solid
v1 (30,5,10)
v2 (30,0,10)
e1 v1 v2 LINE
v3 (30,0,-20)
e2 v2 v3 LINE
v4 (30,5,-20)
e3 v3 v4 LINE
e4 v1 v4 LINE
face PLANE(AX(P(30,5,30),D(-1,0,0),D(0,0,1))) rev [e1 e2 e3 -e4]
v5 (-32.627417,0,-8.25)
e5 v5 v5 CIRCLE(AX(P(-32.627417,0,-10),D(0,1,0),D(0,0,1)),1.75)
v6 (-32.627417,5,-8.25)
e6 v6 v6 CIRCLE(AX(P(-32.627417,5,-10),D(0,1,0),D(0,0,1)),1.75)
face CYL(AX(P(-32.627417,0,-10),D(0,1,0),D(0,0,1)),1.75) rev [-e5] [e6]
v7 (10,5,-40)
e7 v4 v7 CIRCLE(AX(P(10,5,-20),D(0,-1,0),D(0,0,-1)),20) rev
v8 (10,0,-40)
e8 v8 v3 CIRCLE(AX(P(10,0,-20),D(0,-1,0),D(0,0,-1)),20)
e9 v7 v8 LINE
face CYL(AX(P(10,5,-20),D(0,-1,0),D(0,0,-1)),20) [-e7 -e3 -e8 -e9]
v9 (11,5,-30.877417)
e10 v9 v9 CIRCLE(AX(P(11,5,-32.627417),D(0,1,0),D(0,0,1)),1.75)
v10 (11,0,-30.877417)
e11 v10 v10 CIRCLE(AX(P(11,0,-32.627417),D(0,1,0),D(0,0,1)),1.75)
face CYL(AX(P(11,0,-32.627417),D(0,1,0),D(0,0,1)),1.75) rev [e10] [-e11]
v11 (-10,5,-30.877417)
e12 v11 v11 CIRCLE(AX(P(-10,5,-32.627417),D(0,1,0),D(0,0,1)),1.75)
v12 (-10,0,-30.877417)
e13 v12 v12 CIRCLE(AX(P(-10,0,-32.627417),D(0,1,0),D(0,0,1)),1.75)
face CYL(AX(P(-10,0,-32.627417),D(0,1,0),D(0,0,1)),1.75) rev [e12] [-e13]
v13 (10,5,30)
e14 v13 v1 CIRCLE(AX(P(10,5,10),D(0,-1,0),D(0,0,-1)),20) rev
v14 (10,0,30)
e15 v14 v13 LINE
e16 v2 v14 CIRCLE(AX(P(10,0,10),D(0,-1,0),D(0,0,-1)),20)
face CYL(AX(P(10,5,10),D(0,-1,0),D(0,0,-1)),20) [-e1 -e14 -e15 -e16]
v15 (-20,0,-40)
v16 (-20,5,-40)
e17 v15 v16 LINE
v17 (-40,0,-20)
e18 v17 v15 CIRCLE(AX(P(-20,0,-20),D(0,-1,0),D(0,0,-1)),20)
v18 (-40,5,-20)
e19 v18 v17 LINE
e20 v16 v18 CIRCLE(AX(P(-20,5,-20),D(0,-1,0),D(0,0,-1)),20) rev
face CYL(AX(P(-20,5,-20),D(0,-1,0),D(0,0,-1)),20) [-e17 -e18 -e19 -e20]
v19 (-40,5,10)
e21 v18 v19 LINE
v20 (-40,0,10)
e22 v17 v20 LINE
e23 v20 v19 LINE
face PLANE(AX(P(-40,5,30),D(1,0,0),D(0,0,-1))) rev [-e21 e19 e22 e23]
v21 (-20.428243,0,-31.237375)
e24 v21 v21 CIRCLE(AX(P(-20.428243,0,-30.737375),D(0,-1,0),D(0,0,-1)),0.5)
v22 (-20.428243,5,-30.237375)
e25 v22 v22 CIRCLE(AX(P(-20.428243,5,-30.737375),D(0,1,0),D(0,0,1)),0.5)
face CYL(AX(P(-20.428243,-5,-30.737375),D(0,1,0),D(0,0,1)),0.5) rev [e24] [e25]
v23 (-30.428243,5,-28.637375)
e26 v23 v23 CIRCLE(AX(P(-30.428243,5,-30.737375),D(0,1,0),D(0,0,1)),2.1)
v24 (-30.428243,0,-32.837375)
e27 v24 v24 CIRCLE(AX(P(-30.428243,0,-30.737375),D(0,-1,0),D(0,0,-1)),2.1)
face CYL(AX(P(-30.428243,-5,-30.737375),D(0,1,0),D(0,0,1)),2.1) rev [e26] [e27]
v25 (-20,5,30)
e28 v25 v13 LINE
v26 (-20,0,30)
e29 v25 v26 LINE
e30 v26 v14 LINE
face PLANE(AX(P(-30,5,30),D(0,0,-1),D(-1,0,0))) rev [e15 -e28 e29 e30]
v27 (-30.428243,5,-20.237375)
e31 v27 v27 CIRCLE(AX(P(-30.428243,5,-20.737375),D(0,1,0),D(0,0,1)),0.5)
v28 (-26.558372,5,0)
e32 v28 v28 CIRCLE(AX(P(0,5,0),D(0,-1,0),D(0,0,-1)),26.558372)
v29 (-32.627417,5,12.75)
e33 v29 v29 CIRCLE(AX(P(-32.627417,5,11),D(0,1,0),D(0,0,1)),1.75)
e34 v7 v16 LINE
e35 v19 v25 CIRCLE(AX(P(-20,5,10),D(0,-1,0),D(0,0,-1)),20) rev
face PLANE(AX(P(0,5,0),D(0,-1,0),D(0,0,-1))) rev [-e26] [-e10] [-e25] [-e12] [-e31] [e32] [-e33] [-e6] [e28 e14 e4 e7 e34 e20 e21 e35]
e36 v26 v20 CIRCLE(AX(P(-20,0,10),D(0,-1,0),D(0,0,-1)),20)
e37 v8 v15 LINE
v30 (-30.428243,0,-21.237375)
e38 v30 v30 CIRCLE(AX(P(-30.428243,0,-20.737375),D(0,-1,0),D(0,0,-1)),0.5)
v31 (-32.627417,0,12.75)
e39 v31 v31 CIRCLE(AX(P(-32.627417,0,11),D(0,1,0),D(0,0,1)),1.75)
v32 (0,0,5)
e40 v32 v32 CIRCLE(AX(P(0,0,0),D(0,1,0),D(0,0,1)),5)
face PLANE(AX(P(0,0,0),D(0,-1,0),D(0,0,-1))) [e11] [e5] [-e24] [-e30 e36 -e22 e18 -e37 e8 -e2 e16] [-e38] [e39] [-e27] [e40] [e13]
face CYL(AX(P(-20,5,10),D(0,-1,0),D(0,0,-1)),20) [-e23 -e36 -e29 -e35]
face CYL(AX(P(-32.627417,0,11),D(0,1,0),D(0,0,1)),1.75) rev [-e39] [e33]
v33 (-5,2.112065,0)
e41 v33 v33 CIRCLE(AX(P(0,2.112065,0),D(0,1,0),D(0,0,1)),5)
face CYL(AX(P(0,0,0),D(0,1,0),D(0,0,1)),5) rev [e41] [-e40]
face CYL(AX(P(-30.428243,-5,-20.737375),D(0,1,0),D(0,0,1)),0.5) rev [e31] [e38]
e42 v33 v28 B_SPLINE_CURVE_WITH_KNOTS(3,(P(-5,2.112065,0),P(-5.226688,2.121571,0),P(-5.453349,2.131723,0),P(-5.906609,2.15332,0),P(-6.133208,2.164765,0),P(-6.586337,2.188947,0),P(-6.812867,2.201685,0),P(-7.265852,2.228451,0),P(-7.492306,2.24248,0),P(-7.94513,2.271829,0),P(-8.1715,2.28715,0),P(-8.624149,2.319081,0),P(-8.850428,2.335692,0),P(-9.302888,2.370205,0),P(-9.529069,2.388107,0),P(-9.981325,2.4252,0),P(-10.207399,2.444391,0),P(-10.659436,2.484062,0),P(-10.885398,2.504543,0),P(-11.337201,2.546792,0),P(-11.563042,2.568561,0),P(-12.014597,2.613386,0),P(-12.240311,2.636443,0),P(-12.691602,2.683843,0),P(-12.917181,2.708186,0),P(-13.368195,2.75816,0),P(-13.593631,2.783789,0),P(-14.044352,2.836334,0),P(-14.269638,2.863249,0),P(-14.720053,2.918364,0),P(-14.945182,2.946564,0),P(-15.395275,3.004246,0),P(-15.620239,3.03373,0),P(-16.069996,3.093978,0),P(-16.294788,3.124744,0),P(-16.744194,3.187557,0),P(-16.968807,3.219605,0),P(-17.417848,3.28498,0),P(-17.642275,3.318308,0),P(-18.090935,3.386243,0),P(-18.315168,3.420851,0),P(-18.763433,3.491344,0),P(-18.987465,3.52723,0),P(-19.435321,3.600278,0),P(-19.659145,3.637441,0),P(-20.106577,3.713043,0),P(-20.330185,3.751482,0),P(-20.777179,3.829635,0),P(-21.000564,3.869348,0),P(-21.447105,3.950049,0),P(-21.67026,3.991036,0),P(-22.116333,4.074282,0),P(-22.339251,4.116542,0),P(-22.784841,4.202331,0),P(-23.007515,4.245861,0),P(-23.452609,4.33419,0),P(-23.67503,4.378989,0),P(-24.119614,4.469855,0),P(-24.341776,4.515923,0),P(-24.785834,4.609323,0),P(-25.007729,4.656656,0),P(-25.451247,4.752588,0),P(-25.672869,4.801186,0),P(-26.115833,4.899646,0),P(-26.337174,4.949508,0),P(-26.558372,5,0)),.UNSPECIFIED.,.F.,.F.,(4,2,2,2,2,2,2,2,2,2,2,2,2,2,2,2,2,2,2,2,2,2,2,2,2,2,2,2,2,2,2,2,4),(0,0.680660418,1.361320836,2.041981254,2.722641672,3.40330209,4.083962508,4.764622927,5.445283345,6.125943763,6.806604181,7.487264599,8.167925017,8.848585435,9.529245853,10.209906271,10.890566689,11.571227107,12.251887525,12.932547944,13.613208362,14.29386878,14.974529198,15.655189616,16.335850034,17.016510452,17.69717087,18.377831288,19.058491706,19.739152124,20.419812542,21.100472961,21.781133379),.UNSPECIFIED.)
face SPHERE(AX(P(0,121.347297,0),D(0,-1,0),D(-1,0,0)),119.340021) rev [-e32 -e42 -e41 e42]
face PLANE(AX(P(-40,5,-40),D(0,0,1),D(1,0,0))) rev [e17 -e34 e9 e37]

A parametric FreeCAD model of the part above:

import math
import FreeCAD as App
import Part
import Sketcher
Q = App.Units.Quantity


def edges_at(feature, points):
    """Names of the edges that pass closest to the given points."""
    edges = feature.Shape.Edges
    near = lambda p: min(range(len(edges)), key=lambda i: edges[i].distToShape(Part.Vertex(*p))[0])
    return sorted({f"Edge{near(p) + 1}" for p in points})


def add_polygon(sketch, points):
    """Adds a closed chain of lines whose ends are joined by coincident constraints."""
    first, n = sketch.GeometryCount, len(points)
    for a, b in zip(points, points[1:] + points[:1]):
        sketch.addGeometry(Part.LineSegment(App.Vector(*a, 0), App.Vector(*b, 0)), False)
    for i in range(n):
        sketch.addConstraint(Sketcher.Constraint("Coincident", first + i, 2, first + (i + 1) % n, 1))

doc = App.newDocument("Part")
body = doc.addObject("PartDesign::Body", "Body")

sketch1 = doc.addObject("Sketcher::SketchObject", "Sketch")
body.addObject(sketch1)
sketch1.AttachmentSupport = (doc.XZ_Plane, [""])
sketch1.MapMode = "FlatFace"
add_polygon(sketch1, [(-30, -30), (-30, 30), (30, 30), (30, -30)])
sketch1.addConstraint(Sketcher.Constraint("Vertical", 0))
sketch1.addConstraint(Sketcher.Constraint("Horizontal", 1))
sketch1.addConstraint(Sketcher.Constraint("Vertical", 2))
sketch1.addConstraint(Sketcher.Constraint("Horizontal", 3))
sketch1.addConstraint(Sketcher.Constraint("Symmetric", 0, 2, 2, 2, -1, 1))
sketch1.addConstraint(Sketcher.Constraint("Equal", 3, 0))
sketch1.addConstraint(Sketcher.Constraint("DistanceX", 1, 1, 1, 2, Q("60 mm")))
pad1 = doc.addObject("PartDesign::Pad", "Pad")
body.addObject(pad1)
pad1.Profile = sketch1
pad1.Length = 5
pad1.Reversed = True

sketch2 = doc.addObject("Sketcher::SketchObject", "Sketch001")
body.addObject(sketch2)
sketch2.AttachmentSupport = (doc.XZ_Plane, [""])
sketch2.MapMode = "FlatFace"
sketch2.AttachmentOffset = App.Placement(App.Vector(0, 0, -5), App.Rotation())
sketch2.addGeometry(Part.Circle(App.Vector(0, 0, 0), App.Vector(0, 0, 1), 5), False)
sketch2.addConstraint(Sketcher.Constraint("Coincident", 0, 3, -1, 1))
sketch2.addConstraint(Sketcher.Constraint("Diameter", 0, Q("10 mm")))
pocket1 = doc.addObject("PartDesign::Pocket", "Pocket")
body.addObject(pocket1)
pocket1.Profile = sketch2
pocket1.Type = "ThroughAll"
pocket1.Reversed = True

sketch3 = doc.addObject("Sketcher::SketchObject", "Sketch002")
body.addObject(sketch3)
sketch3.AttachmentSupport = (doc.XY_Plane, [""])
sketch3.MapMode = "FlatFace"
sketch3.addGeometry(Part.LineSegment(App.Vector(0, 241, 0), App.Vector(0, 2, 0)), False)
sketch3.addGeometry(Part.ArcOfCircle(Part.Circle(App.Vector(0, 121, 0), App.Vector(0, 0, 1), 119), math.radians(-90), math.radians(90)), False)
sketch3.addConstraint(Sketcher.Constraint("Coincident", 0, 1, 1, 2))
sketch3.addConstraint(Sketcher.Constraint("Coincident", 1, 1, 0, 2))
sketch3.addConstraint(Sketcher.Constraint("Vertical", 0))
sketch3.addConstraint(Sketcher.Constraint("PointOnObject", 1, 3, -2))
sketch3.addConstraint(Sketcher.Constraint("PointOnObject", 0, 1, -2))
sketch3.addConstraint(Sketcher.Constraint("Radius", 1, Q("119.340021 mm")))
sketch3.addConstraint(Sketcher.Constraint("DistanceY", -1, 1, 0, 1, Q("240.687318 mm")))
groove = doc.addObject("PartDesign::Groove", "Groove")
body.addObject(groove)
groove.Profile = sketch3
groove.ReferenceAxis = (sketch3, ["V_Axis"])
groove.Angle = 360

sketch4 = doc.addObject("Sketcher::SketchObject", "Sketch003")
body.addObject(sketch4)
sketch4.AttachmentSupport = (doc.XZ_Plane, [""])
sketch4.MapMode = "FlatFace"
add_polygon(sketch4, [(-40, 30), (-30, 30), (-30, -30), (30, -30), (30, -40), (-40, -40)])
sketch4.addConstraint(Sketcher.Constraint("Horizontal", 0))
sketch4.addConstraint(Sketcher.Constraint("Vertical", 1))
sketch4.addConstraint(Sketcher.Constraint("Horizontal", 2))
sketch4.addConstraint(Sketcher.Constraint("Vertical", 3))
sketch4.addConstraint(Sketcher.Constraint("Horizontal", 4))
sketch4.addConstraint(Sketcher.Constraint("Vertical", 5))
sketch4.addConstraint(Sketcher.Constraint("Symmetric", 0, 2, 2, 2, -1, 1))
sketch4.addConstraint(Sketcher.Constraint("Equal", 2, 1))
sketch4.addConstraint(Sketcher.Constraint("Equal", 0, 3))
sketch4.addConstraint(Sketcher.Constraint("DistanceX", 0, 1, 0, 2, Q("10 mm")))
sketch4.addConstraint(Sketcher.Constraint("DistanceX", 2, 1, 2, 2, Q("60 mm")))
pad2 = doc.addObject("PartDesign::Pad", "Pad001")
body.addObject(pad2)
pad2.Profile = sketch4
pad2.Length = 5
pad2.Reversed = True

sketch5 = doc.addObject("Sketcher::SketchObject", "Sketch004")
body.addObject(sketch5)
sketch5.AttachmentSupport = (doc.XZ_Plane, [""])
sketch5.MapMode = "FlatFace"
sketch5.AttachmentOffset = App.Placement(App.Vector(0, 0, -5), App.Rotation())
sketch5.addGeometry(Part.Circle(App.Vector(-32.6, -10, 0), App.Vector(0, 0, 1), 1.8), False)
sketch5.addGeometry(Part.Circle(App.Vector(-10, -32.6, 0), App.Vector(0, 0, 1), 1.8), False)
sketch5.addGeometry(Part.Circle(App.Vector(11, -32.6, 0), App.Vector(0, 0, 1), 1.8), False)
sketch5.addGeometry(Part.Circle(App.Vector(-32.6, 11, 0), App.Vector(0, 0, 1), 1.8), False)
sketch5.addConstraint(Sketcher.Constraint("Equal", 0, 1))
sketch5.addConstraint(Sketcher.Constraint("Equal", 1, 2))
sketch5.addConstraint(Sketcher.Constraint("Equal", 2, 3))
sketch5.addConstraint(Sketcher.Constraint("Horizontal", 1, 3, 2, 3))
sketch5.addConstraint(Sketcher.Constraint("Vertical", 0, 3, 3, 3))
sketch5.addConstraint(Sketcher.Constraint("Diameter", 0, Q("3.5 mm")))
sketch5.addConstraint(Sketcher.Constraint("DistanceY", 0, 3, -1, 1, Q("10 mm")))
sketch5.addConstraint(Sketcher.Constraint("DistanceX", 1, 3, -1, 1, Q("10 mm")))
sketch5.addConstraint(Sketcher.Constraint("DistanceX", -1, 1, 2, 3, Q("11 mm")))
sketch5.addConstraint(Sketcher.Constraint("DistanceY", -1, 1, 3, 3, Q("11 mm")))
sketch5.addConstraint(Sketcher.Constraint("DistanceX", 0, 3, -1, 1, Q("32.627417 mm")))
sketch5.addConstraint(Sketcher.Constraint("DistanceY", 1, 3, -1, 1, Q("32.627417 mm")))
pocket2 = doc.addObject("PartDesign::Pocket", "Pocket001")
body.addObject(pocket2)
pocket2.Profile = sketch5
pocket2.Type = "ThroughAll"
pocket2.Reversed = True
doc.recompute()

fillet = doc.addObject("PartDesign::Fillet", "Fillet")
body.addObject(fillet)
fillet.Base = (pocket2, edges_at(pocket2, [
    (30, 2.5, -40),
    (-40, 2.5, -40),
    (-40, 2.5, 30),
    (30, 2.5, 30),
]))
fillet.Radius = 20

sketch6 = doc.addObject("Sketcher::SketchObject", "Sketch005")
body.addObject(sketch6)
sketch6.AttachmentSupport = (doc.XZ_Plane, [""])
sketch6.MapMode = "FlatFace"
sketch6.AttachmentOffset = App.Placement(App.Vector(0, 0, -5), App.Rotation())
sketch6.addGeometry(Part.Circle(App.Vector(-30.4, -30.7, 0), App.Vector(0, 0, 1), 2.1), False)
sketch6.addGeometry(Part.Circle(App.Vector(-20.4, -30.7, 0), App.Vector(0, 0, 1), 0.5), False)
sketch6.addGeometry(Part.Circle(App.Vector(-30.4, -20.7, 0), App.Vector(0, 0, 1), 0.5), False)
sketch6.addConstraint(Sketcher.Constraint("Equal", 1, 2))
sketch6.addConstraint(Sketcher.Constraint("Horizontal", 0, 3, 1, 3))
sketch6.addConstraint(Sketcher.Constraint("Vertical", 0, 3, 2, 3))
sketch6.addConstraint(Sketcher.Constraint("Diameter", 1, Q("1 mm")))
sketch6.addConstraint(Sketcher.Constraint("Diameter", 0, Q("4.2 mm")))
sketch6.addConstraint(Sketcher.Constraint("DistanceX", 0, 3, 1, 3, Q("10 mm")))
sketch6.addConstraint(Sketcher.Constraint("DistanceY", 0, 3, 2, 3, Q("10 mm")))
sketch6.addConstraint(Sketcher.Constraint("DistanceX", 0, 3, -1, 1, Q("30.428243 mm")))
sketch6.addConstraint(Sketcher.Constraint("DistanceY", 0, 3, -1, 1, Q("30.737375 mm")))
pocket3 = doc.addObject("PartDesign::Pocket", "Pocket002")
body.addObject(pocket3)
pocket3.Profile = sketch6
pocket3.Length = 10
pocket3.Reversed = True

doc.recompute()
